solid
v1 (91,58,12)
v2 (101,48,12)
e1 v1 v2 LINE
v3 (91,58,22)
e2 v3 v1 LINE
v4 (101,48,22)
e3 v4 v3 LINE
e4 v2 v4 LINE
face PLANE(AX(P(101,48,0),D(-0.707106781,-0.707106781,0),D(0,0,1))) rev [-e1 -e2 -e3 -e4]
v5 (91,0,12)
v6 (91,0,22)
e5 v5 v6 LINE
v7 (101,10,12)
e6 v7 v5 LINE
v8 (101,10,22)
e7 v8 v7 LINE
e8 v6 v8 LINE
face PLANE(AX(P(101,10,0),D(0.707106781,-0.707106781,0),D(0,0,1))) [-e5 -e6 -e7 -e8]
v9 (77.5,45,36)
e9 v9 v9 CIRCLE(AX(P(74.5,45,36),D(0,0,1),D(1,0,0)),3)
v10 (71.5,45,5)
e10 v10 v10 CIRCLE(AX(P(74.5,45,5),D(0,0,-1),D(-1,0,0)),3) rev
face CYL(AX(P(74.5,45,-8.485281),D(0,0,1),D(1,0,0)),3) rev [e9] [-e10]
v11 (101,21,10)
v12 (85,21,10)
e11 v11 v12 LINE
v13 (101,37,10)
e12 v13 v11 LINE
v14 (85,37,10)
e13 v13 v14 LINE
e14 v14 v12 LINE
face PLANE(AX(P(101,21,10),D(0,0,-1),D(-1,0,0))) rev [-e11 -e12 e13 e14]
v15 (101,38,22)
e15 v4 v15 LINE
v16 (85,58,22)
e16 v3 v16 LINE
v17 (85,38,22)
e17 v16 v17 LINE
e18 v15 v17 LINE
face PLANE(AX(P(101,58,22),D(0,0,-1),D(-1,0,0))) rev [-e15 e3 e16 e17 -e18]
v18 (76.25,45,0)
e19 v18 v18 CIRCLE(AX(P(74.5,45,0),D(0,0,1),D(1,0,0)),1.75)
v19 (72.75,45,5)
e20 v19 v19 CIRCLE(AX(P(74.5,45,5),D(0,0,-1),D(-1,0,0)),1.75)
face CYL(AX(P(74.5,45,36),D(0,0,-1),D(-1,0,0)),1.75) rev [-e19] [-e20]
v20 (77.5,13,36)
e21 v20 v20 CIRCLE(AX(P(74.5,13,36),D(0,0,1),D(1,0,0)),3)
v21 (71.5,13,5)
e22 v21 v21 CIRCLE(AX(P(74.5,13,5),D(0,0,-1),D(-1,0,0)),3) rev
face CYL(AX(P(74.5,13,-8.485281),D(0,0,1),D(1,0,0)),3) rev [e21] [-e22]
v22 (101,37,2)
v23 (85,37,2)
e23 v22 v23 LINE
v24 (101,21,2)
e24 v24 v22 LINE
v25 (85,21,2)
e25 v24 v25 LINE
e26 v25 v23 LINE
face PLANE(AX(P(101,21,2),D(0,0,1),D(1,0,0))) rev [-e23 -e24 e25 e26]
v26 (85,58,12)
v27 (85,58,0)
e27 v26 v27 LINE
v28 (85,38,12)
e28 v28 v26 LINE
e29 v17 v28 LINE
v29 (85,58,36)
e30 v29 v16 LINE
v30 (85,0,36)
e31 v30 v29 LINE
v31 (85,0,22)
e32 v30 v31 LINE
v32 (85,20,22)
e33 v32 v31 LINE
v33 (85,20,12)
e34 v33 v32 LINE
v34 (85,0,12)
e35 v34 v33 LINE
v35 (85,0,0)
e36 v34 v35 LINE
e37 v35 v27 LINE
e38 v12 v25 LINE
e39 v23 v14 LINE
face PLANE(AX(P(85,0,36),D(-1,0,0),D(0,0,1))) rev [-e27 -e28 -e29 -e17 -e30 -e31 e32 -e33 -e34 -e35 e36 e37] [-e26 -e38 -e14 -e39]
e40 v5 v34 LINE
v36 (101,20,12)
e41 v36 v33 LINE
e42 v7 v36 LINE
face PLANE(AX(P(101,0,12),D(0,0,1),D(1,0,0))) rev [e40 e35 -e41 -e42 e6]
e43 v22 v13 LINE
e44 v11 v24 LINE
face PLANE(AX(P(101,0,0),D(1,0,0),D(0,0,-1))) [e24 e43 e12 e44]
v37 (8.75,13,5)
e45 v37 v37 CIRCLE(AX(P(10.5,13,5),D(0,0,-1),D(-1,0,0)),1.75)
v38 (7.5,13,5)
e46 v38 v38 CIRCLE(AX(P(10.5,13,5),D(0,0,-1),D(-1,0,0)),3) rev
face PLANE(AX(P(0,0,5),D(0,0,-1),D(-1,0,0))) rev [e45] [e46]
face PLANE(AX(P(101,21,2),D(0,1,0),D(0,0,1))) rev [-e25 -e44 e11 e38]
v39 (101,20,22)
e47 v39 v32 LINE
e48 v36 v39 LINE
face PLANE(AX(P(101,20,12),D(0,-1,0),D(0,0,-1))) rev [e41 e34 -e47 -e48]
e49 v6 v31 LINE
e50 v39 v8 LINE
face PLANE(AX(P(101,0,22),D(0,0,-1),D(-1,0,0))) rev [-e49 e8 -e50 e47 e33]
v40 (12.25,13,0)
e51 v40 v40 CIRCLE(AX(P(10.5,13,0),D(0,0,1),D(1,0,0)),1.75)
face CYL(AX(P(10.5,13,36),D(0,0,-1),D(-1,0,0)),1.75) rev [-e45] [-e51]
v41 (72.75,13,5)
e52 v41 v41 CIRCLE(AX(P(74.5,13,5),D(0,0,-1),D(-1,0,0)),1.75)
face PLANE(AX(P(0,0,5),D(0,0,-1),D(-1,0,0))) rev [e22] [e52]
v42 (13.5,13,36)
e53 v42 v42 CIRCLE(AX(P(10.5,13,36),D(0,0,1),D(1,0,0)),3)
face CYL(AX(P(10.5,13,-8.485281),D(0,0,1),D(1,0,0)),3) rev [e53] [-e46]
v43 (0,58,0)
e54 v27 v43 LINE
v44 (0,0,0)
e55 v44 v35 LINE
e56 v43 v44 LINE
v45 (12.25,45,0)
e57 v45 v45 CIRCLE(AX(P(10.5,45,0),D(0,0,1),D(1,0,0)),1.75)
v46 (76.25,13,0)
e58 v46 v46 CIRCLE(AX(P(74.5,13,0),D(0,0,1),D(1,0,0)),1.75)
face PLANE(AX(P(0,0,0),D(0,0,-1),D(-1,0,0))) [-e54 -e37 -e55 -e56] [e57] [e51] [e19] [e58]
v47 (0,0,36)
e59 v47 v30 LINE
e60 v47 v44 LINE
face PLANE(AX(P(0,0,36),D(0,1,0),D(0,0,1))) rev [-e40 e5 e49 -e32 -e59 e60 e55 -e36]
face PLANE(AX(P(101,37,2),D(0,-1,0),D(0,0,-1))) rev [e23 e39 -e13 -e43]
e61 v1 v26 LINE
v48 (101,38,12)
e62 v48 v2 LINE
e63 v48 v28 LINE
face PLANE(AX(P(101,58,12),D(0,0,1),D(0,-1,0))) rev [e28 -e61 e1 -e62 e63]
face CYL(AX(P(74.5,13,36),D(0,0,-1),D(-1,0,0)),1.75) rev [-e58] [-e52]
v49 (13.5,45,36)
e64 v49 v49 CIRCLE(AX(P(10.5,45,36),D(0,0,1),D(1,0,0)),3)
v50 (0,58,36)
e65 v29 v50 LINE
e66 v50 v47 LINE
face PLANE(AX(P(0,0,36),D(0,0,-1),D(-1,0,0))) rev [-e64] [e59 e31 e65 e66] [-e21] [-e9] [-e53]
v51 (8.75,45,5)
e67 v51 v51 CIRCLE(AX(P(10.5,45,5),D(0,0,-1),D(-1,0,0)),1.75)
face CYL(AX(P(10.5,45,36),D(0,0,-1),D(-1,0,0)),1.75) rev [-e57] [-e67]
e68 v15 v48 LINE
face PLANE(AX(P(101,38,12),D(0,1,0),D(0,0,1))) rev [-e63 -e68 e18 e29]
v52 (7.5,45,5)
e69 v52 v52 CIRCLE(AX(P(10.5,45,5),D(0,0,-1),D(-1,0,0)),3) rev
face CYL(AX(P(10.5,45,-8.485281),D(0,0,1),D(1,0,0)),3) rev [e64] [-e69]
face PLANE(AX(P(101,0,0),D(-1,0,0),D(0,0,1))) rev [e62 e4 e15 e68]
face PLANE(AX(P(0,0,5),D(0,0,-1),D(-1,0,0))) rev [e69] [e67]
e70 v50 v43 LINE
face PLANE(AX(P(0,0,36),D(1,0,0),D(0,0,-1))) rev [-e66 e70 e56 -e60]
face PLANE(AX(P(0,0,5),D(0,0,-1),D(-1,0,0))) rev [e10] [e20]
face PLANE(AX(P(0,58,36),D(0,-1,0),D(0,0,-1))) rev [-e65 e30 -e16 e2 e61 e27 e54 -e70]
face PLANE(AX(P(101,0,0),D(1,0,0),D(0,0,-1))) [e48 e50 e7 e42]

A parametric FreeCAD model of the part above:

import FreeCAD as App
import Part
import Sketcher


def edges_at(feature, points):
    """Names of the edges that pass closest to the given points."""
    edges = feature.Shape.Edges
    near = lambda p: min(range(len(edges)), key=lambda i: edges[i].distToShape(Part.Vertex(*p))[0])
    return sorted({f"Edge{near(p) + 1}" for p in points})


def add_polygon(sketch, points):
    """Adds a closed chain of lines whose ends are joined by coincident constraints."""
    first, n = sketch.GeometryCount, len(points)
    for a, b in zip(points, points[1:] + points[:1]):
        sketch.addGeometry(Part.LineSegment(App.Vector(*a, 0), App.Vector(*b, 0)), False)
    for i in range(n):
        sketch.addConstraint(Sketcher.Constraint("Coincident", first + i, 2, first + (i + 1) % n, 1))

doc = App.newDocument("Part")
params = doc.addObject("Spreadsheet::Sheet", "Params")
for row, (alias, value) in enumerate([
    ("sketch1_diameter", "3.5 mm"),
    ("sketch1_width", "85 mm"),
    ("sketch1_height", "58 mm"),
    ("pad1_length", "36 mm"),
    ("sketch2_diameter", "6 mm"),
    ("pocket1_length", "31 mm"),
    ("sketch3_width", "16 mm"),
    ("sketch3_height", "8 mm"),
    ("pad2_length", "16 mm"),
    ("sketch4_width", "20 mm"),
    ("sketch4_height", "10 mm"),
    ("pad3_length", "16 mm"),
    ("chamfer_size", "10 mm"),
], start=1):
    params.set(f"A{row}", alias)
    params.set(f"B{row}", "=" + value)
    params.setAlias(f"B{row}", alias)

body = doc.addObject("PartDesign::Body", "Body")

# Sketch on XY plane
sketch1 = doc.addObject("Sketcher::SketchObject", "Sketch")
body.addObject(sketch1)
sketch1.AttachmentSupport = (doc.XY_Plane, [""])
sketch1.MapMode = "FlatFace"
add_polygon(sketch1, [(0, 58), (0, 0), (85, 0), (85, 58)])  # lines 0-3
sketch1.addGeometry(Part.Circle(App.Vector(10.5, 13, 0), App.Vector(0, 0, 1), 1.8), False)  # 4
sketch1.addGeometry(Part.Circle(App.Vector(74.5, 13, 0), App.Vector(0, 0, 1), 1.8), False)  # 5
sketch1.addGeometry(Part.Circle(App.Vector(10.5, 45, 0), App.Vector(0, 0, 1), 1.8), False)  # 6
sketch1.addGeometry(Part.Circle(App.Vector(74.5, 45, 0), App.Vector(0, 0, 1), 1.8), False)  # 7
sketch1.addConstraint(Sketcher.Constraint("Vertical", 0))
sketch1.addConstraint(Sketcher.Constraint("Horizontal", 1))
sketch1.addConstraint(Sketcher.Constraint("Vertical", 2))
sketch1.addConstraint(Sketcher.Constraint("Horizontal", 3))
sketch1.addConstraint(Sketcher.Constraint("Coincident", 0, 2, -1, 1))
sketch1.addConstraint(Sketcher.Constraint("Equal", 4, 5))
sketch1.addConstraint(Sketcher.Constraint("Equal", 5, 6))
sketch1.addConstraint(Sketcher.Constraint("Equal", 6, 7))
sketch1.addConstraint(Sketcher.Constraint("Horizontal", 4, 3, 5, 3))
sketch1.addConstraint(Sketcher.Constraint("Horizontal", 6, 3, 7, 3))
sketch1.addConstraint(Sketcher.Constraint("Vertical", 4, 3, 6, 3))
sketch1.addConstraint(Sketcher.Constraint("Vertical", 5, 3, 7, 3))
sketch1.addConstraint(Sketcher.Constraint("Diameter", 4, 3.5))
sketch1.addConstraint(Sketcher.Constraint("DistanceX", 1, 1, 1, 2, 85.0))
sketch1.addConstraint(Sketcher.Constraint("DistanceY", 0, 2, 0, 1, 58.0))
sketch1.addConstraint(Sketcher.Constraint("DistanceY", -1, 1, 4, 3, 13.0))
sketch1.addConstraint(Sketcher.Constraint("DistanceY", -1, 1, 6, 3, 45.0))
sketch1.addConstraint(Sketcher.Constraint("DistanceX", 4, 3, 5, 3, 64.0))
sketch1.addConstraint(Sketcher.Constraint("DistanceX", -1, 1, 4, 3, 10.5))
sketch1.setExpression("Constraints[16]", "Params.sketch1_diameter")
sketch1.setExpression("Constraints[17]", "Params.sketch1_width")
sketch1.setExpression("Constraints[18]", "Params.sketch1_height")
pad1 = doc.addObject("PartDesign::Pad", "Pad")
body.addObject(pad1)
pad1.Profile = sketch1
pad1.setExpression("Length", "Params.pad1_length")

# Sketch on XY plane
sketch2 = doc.addObject("Sketcher::SketchObject", "Sketch001")
body.addObject(sketch2)
sketch2.AttachmentSupport = (doc.XY_Plane, [""])
sketch2.MapMode = "FlatFace"
sketch2.AttachmentOffset = App.Placement(App.Vector(0, 0, 36), App.Rotation())
sketch2.addGeometry(Part.Circle(App.Vector(10.5, 45, 0), App.Vector(0, 0, 1), 3), False)
sketch2.addGeometry(Part.Circle(App.Vector(74.5, 45, 0), App.Vector(0, 0, 1), 3), False)
sketch2.addGeometry(Part.Circle(App.Vector(74.5, 13, 0), App.Vector(0, 0, 1), 3), False)
sketch2.addGeometry(Part.Circle(App.Vector(10.5, 13, 0), App.Vector(0, 0, 1), 3), False)
sketch2.addConstraint(Sketcher.Constraint("Equal", 0, 1))
sketch2.addConstraint(Sketcher.Constraint("Equal", 1, 2))
sketch2.addConstraint(Sketcher.Constraint("Equal", 2, 3))
sketch2.addConstraint(Sketcher.Constraint("Horizontal", 0, 3, 1, 3))
sketch2.addConstraint(Sketcher.Constraint("Horizontal", 2, 3, 3, 3))
sketch2.addConstraint(Sketcher.Constraint("Vertical", 1, 3, 2, 3))
sketch2.addConstraint(Sketcher.Constraint("Vertical", 0, 3, 3, 3))
sketch2.addConstraint(Sketcher.Constraint("Diameter", 0, 6.0))
sketch2.addConstraint(Sketcher.Constraint("DistanceY", -1, 1, 0, 3, 45.0))
sketch2.addConstraint(Sketcher.Constraint("DistanceY", -1, 1, 2, 3, 13.0))
sketch2.addConstraint(Sketcher.Constraint("DistanceX", 0, 3, 1, 3, 64.0))
sketch2.addConstraint(Sketcher.Constraint("DistanceX", -1, 1, 0, 3, 10.5))
sketch2.setExpression("Constraints[7]", "Params.sketch2_diameter")
pocket1 = doc.addObject("PartDesign::Pocket", "Pocket")
body.addObject(pocket1)
pocket1.Profile = sketch2
pocket1.setExpression("Length", "Params.pocket1_length")

# Sketch on YZ plane
sketch3 = doc.addObject("Sketcher::SketchObject", "Sketch002")
body.addObject(sketch3)
sketch3.AttachmentSupport = (doc.YZ_Plane, [""])
sketch3.MapMode = "FlatFace"
sketch3.AttachmentOffset = App.Placement(App.Vector(0, 0, 85), App.Rotation())
add_polygon(sketch3, [(37, 10), (21, 10), (21, 2), (37, 2)])  # lines 0-3
sketch3.addConstraint(Sketcher.Constraint("Horizontal", 0))
sketch3.addConstraint(Sketcher.Constraint("Vertical", 1))
sketch3.addConstraint(Sketcher.Constraint("Horizontal", 2))
sketch3.addConstraint(Sketcher.Constraint("Vertical", 3))
sketch3.addConstraint(Sketcher.Constraint("DistanceX", 0, 2, 0, 1, 16.0))
sketch3.addConstraint(Sketcher.Constraint("DistanceY", 1, 2, 1, 1, 8.0))
sketch3.addConstraint(Sketcher.Constraint("DistanceX", -1, 1, 0, 2, 21.0))
sketch3.addConstraint(Sketcher.Constraint("DistanceY", -1, 1, 0, 2, 10.0))
sketch3.setExpression("Constraints[8]", "Params.sketch3_width")
sketch3.setExpression("Constraints[9]", "Params.sketch3_height")
pad2 = doc.addObject("PartDesign::Pad", "Pad001")
body.addObject(pad2)
pad2.Profile = sketch3
pad2.setExpression("Length", "Params.pad2_length")

# Sketch on YZ plane
sketch4 = doc.addObject("Sketcher::SketchObject", "Sketch003")
body.addObject(sketch4)
sketch4.AttachmentSupport = (doc.YZ_Plane, [""])
sketch4.MapMode = "FlatFace"
sketch4.AttachmentOffset = App.Placement(App.Vector(0, 0, 85), App.Rotation())
add_polygon(sketch4, [(58, 22), (38, 22), (38, 12), (58, 12)])  # lines 0-3
add_polygon(sketch4, [(20, 22), (0, 22), (0, 12), (20, 12)])  # lines 4-7
sketch4.addConstraint(Sketcher.Constraint("Horizontal", 0))
sketch4.addConstraint(Sketcher.Constraint("Vertical", 1))
sketch4.addConstraint(Sketcher.Constraint("Horizontal", 2))
sketch4.addConstraint(Sketcher.Constraint("Vertical", 3))
sketch4.addConstraint(Sketcher.Constraint("Horizontal", 4))
sketch4.addConstraint(Sketcher.Constraint("Vertical", 5))
sketch4.addConstraint(Sketcher.Constraint("Horizontal", 6))
sketch4.addConstraint(Sketcher.Constraint("Vertical", 7))
sketch4.addConstraint(Sketcher.Constraint("PointOnObject", 4, 2, -2))
sketch4.addConstraint(Sketcher.Constraint("Horizontal", 3, 2, 4, 2))
sketch4.addConstraint(Sketcher.Constraint("Horizontal", 2, 2, 5, 2))
sketch4.addConstraint(Sketcher.Constraint("Equal", 2, 4))
sketch4.addConstraint(Sketcher.Constraint("DistanceX", 0, 2, 0, 1, 20.0))
sketch4.addConstraint(Sketcher.Constraint("DistanceY", 1, 2, 1, 1, 10.0))
sketch4.addConstraint(Sketcher.Constraint("DistanceX", -1, 1, 0, 2, 38.0))
sketch4.addConstraint(Sketcher.Constraint("DistanceY", -1, 1, 0, 2, 22.0))
sketch4.setExpression("Constraints[20]", "Params.sketch4_width")
sketch4.setExpression("Constraints[21]", "Params.sketch4_height")
pad3 = doc.addObject("PartDesign::Pad", "Pad002")
body.addObject(pad3)
pad3.Profile = sketch4
pad3.setExpression("Length", "Params.pad3_length")
doc.recompute()

chamfer = doc.addObject("PartDesign::Chamfer", "Chamfer")
body.addObject(chamfer)
chamfer.Base = (pad3, edges_at(pad3, [(101, 58, 17), (101, 0, 17)]))
chamfer.setExpression("Size", "Params.chamfer_size")

doc.recompute()
